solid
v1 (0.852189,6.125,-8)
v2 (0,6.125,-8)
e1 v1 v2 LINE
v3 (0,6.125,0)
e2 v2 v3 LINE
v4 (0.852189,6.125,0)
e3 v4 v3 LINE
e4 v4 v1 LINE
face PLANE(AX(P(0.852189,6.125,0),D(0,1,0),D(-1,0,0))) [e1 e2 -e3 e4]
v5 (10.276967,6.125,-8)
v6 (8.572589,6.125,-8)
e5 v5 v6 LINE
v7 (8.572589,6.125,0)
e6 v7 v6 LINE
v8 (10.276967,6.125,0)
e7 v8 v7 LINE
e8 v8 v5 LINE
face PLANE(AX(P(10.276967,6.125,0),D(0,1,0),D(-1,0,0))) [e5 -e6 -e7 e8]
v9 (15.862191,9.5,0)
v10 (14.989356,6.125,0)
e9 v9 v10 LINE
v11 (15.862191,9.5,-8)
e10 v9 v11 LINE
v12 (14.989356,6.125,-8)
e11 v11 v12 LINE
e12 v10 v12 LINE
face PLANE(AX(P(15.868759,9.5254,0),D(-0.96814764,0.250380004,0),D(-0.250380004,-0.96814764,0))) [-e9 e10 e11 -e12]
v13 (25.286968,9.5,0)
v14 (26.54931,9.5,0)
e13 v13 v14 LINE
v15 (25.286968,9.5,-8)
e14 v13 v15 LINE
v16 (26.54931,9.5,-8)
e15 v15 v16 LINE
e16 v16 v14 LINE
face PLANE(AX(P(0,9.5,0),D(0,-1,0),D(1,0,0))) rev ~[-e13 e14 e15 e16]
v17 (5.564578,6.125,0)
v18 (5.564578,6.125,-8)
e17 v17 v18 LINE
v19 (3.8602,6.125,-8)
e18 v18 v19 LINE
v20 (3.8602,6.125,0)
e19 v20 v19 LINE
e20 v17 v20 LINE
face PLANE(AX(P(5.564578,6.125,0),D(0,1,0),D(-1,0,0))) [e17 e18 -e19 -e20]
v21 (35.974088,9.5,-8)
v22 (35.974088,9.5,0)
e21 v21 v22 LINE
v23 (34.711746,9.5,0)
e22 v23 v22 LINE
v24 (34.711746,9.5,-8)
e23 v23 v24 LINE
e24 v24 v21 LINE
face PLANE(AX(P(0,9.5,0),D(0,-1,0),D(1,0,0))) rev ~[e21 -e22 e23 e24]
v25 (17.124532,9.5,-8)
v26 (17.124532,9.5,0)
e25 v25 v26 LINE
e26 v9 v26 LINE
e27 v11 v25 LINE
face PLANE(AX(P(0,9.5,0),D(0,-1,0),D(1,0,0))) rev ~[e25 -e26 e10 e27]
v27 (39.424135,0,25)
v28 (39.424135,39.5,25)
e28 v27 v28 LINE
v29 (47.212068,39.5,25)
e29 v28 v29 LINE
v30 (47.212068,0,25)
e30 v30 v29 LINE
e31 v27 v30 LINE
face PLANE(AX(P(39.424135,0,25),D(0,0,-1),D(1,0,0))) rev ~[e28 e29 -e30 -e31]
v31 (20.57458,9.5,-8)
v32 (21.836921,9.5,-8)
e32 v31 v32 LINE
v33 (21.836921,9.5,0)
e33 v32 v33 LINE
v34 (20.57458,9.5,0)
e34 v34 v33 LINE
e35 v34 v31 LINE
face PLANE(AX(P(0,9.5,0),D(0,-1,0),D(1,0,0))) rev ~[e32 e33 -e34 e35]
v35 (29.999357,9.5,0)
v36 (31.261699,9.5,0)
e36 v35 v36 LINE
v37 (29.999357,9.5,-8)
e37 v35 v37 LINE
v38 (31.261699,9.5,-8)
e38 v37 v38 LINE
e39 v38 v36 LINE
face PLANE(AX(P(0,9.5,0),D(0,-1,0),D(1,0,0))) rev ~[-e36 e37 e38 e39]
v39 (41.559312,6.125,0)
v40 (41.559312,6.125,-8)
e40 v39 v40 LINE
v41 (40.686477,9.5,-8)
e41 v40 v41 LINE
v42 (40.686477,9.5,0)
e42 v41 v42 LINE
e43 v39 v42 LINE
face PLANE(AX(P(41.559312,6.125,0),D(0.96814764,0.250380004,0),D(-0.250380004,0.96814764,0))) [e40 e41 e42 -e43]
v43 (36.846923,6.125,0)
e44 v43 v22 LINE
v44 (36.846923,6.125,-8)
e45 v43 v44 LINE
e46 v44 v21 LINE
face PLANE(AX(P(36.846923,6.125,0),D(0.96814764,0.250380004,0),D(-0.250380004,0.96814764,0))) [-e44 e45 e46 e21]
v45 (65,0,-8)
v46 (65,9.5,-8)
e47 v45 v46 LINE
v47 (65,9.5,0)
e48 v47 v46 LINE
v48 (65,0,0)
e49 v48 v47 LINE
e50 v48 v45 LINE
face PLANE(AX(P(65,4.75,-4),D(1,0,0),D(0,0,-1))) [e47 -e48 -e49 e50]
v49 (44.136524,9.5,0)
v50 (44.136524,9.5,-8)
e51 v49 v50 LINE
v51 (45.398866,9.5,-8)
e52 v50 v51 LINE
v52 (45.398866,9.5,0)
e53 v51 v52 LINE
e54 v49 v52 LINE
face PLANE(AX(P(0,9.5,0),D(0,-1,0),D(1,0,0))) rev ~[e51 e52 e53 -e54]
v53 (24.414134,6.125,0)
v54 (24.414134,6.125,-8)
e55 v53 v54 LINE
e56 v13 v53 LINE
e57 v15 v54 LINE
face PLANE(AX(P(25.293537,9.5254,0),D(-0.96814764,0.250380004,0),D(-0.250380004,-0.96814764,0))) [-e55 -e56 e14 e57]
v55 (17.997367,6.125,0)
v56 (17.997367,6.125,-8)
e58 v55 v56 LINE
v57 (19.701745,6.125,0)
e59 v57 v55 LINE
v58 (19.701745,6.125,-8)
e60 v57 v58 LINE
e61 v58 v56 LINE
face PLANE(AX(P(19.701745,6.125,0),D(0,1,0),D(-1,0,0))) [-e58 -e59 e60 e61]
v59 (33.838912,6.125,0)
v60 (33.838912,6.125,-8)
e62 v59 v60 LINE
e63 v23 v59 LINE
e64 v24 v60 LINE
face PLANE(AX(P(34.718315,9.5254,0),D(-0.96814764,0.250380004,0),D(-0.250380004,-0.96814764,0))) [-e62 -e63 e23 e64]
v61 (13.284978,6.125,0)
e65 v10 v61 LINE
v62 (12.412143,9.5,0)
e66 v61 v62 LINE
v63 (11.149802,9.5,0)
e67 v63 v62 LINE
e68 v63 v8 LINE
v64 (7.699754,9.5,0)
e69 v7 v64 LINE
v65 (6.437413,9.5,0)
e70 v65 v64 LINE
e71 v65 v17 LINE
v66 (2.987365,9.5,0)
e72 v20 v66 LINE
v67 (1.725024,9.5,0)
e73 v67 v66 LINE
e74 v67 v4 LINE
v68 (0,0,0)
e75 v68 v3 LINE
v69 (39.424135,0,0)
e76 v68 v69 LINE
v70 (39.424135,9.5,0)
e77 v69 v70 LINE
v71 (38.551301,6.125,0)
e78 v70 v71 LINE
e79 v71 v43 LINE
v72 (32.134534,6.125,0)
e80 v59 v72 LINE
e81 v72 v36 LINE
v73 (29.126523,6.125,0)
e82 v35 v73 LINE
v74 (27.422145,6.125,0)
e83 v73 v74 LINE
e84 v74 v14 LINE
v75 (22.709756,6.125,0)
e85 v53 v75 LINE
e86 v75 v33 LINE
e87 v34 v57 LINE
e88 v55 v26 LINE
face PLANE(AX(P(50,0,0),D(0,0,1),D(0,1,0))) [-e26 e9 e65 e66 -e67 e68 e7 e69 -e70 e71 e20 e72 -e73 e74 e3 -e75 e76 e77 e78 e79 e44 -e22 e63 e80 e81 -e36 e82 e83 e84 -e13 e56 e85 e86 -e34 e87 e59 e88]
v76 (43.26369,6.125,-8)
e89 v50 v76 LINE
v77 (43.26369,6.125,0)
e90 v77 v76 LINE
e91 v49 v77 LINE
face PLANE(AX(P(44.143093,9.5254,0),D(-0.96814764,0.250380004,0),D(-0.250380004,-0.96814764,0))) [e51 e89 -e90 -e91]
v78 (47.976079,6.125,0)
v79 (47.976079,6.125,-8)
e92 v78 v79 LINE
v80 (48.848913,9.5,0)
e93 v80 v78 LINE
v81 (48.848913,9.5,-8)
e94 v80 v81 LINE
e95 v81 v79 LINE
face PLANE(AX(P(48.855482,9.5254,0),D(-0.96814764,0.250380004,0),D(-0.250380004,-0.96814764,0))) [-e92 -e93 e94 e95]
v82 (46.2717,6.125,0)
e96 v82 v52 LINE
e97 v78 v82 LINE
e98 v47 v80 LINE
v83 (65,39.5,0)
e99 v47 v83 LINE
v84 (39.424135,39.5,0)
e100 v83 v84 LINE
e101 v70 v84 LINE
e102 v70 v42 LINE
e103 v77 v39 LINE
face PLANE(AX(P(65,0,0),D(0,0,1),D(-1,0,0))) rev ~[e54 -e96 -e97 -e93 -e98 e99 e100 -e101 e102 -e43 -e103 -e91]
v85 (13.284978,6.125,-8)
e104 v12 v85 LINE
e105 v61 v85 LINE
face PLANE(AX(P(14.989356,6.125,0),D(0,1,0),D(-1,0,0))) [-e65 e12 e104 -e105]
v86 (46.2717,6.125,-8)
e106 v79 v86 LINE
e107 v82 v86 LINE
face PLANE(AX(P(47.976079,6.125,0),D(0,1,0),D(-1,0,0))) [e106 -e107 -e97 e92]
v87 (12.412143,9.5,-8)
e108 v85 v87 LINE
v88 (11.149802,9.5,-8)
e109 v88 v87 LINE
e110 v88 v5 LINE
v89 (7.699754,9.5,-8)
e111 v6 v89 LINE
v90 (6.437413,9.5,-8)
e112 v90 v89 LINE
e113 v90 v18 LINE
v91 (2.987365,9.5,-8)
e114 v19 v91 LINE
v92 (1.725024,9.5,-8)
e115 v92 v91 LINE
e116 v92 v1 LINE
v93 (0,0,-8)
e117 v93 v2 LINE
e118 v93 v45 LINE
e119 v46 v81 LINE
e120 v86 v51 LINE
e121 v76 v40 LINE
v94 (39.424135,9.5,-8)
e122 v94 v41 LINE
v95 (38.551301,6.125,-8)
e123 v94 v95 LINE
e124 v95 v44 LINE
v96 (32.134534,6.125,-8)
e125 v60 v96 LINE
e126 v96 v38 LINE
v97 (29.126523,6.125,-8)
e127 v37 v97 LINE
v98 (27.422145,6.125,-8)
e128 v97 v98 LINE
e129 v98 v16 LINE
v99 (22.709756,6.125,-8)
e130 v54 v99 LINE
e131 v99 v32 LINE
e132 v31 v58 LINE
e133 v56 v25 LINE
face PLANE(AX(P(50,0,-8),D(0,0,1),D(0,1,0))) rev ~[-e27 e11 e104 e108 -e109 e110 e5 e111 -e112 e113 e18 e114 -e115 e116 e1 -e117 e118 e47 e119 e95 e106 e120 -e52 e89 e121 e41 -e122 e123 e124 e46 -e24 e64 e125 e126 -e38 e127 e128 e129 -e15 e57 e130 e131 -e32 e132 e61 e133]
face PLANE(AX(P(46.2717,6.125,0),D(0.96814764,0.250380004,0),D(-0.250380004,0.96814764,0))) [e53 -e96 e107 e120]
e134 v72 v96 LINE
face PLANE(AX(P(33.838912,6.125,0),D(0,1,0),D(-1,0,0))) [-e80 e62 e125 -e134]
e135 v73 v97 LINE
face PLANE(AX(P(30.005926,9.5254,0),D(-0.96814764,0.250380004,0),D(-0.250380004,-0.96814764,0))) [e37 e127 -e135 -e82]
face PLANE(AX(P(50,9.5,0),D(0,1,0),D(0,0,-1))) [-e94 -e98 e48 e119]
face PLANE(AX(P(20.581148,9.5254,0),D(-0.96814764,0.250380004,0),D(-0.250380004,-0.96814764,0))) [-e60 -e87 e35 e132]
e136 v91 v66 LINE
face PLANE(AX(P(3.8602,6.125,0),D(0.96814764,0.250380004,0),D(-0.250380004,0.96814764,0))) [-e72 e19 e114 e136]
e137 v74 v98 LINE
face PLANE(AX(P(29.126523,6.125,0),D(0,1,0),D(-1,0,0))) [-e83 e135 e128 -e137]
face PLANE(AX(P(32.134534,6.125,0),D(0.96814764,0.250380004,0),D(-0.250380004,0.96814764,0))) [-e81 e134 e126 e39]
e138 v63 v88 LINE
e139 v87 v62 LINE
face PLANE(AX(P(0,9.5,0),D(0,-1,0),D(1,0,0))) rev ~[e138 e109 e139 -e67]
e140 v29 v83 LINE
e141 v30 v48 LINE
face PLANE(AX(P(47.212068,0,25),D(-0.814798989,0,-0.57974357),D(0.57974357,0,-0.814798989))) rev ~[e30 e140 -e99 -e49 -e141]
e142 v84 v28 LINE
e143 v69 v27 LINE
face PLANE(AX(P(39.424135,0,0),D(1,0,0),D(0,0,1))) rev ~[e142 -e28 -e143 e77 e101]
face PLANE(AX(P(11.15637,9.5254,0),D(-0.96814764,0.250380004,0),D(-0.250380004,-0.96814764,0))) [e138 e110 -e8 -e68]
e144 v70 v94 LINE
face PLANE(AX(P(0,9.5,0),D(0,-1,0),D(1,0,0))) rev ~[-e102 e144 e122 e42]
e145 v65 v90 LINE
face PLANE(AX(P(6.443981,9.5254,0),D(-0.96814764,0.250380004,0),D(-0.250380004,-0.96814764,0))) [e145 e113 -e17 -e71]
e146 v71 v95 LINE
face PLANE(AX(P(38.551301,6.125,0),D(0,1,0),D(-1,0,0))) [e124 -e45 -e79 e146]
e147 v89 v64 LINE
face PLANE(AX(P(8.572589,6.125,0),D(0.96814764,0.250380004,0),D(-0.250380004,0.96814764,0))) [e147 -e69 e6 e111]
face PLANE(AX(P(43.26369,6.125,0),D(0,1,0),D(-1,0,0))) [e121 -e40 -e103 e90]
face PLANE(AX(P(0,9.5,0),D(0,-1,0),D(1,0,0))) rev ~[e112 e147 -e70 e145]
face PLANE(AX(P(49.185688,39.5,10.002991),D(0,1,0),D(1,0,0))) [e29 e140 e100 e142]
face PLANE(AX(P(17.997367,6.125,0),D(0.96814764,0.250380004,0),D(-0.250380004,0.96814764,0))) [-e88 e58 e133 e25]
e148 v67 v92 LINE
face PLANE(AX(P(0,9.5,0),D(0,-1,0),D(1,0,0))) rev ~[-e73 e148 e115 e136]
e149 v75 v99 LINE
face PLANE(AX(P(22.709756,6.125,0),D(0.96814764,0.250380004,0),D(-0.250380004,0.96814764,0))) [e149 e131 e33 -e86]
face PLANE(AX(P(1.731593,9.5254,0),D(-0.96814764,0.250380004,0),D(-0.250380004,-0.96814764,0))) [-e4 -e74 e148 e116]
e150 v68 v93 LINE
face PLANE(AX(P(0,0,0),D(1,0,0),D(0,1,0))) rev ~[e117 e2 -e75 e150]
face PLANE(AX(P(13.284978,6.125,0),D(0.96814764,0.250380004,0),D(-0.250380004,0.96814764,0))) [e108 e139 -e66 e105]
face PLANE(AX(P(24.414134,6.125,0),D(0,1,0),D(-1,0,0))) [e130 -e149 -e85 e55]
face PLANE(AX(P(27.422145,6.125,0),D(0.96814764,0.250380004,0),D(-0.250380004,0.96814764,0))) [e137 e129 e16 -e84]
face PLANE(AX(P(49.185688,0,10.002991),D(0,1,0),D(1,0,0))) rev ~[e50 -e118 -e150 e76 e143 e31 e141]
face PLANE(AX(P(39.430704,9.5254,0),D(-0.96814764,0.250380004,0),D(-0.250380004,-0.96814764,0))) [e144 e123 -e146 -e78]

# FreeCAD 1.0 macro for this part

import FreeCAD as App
import Part
import Sketcher
from FreeCAD import Vector
Q = App.Units.Quantity

doc = App.newDocument("Part")
params = doc.addObject("Spreadsheet::Sheet", "Params")
for row, (alias, value) in enumerate([
    ("sketch1_width", "50 mm"),
    ("sketch1_height", "9.5 mm"),
    ("pad1_length", "8 mm"),
    ("linearpattern_pitch", "4.712389 mm"),
    ("sketch3_height", "8 mm"),
    ("sketch3_width", "9.5 mm"),
    ("pad2_length", "15 mm"),
    ("sketch4_height", "25 mm"),
    ("pad3_length", "39.5 mm"),
], start=1):
    params.set(f"A{row}", alias)
    params.set(f"B{row}", "=" + value)
    params.setAlias(f"B{row}", alias)

body = doc.addObject("PartDesign::Body", "Body")

sketch1 = doc.addObject("Sketcher::SketchObject", "Sketch")
body.addObject(sketch1)
sketch1.AttachmentSupport = (doc.XY_Plane, [""])
sketch1.MapMode = "FlatFace"
sketch1.addGeometry([
    Part.LineSegment(Vector(0, 10, 0), Vector(0, 0, 0)),
    Part.LineSegment(Vector(0, 0, 0), Vector(50, 0, 0)),
    Part.LineSegment(Vector(50, 0, 0), Vector(50, 10, 0)),
    Part.LineSegment(Vector(50, 10, 0), Vector(0, 10, 0)),
], False)
sketch1.addConstraint([
    Sketcher.Constraint("Coincident", 0, 2, 1, 1),
    Sketcher.Constraint("Coincident", 1, 2, 2, 1),
    Sketcher.Constraint("Coincident", 2, 2, 3, 1),
    Sketcher.Constraint("Coincident", 3, 2, 0, 1),
    Sketcher.Constraint("Vertical", 0),
    Sketcher.Constraint("Horizontal", 1),
    Sketcher.Constraint("Vertical", 2),
    Sketcher.Constraint("Horizontal", 3),
    Sketcher.Constraint("Coincident", 0, 2, -1, 1),
    Sketcher.Constraint("DistanceX", 1, 1, 1, 2, Q("50 mm")),
    Sketcher.Constraint("DistanceY", 0, 2, 0, 1, Q("9.5 mm")),
])
sketch1.setExpression("Constraints[9]", "Params.sketch1_width")
sketch1.setExpression("Constraints[10]", "Params.sketch1_height")
pad1 = doc.addObject("PartDesign::Pad", "Pad")
body.addObject(pad1)
pad1.Profile = sketch1
pad1.setExpression("Length", "Params.pad1_length")
pad1.Reversed = True

sketch2 = doc.addObject("Sketcher::SketchObject", "Sketch001")
body.addObject(sketch2)
sketch2.AttachmentSupport = (doc.XY_Plane, [""])
sketch2.MapMode = "FlatFace"
sketch2.addGeometry([
    Part.LineSegment(Vector(-0.9, 6.1, 0), Vector(0.9, 6.1, 0)),
    Part.LineSegment(Vector(0.9, 6.1, 0), Vector(1.7, 9.5, 0)),
    Part.LineSegment(Vector(1.7, 9.5, 0), Vector(-1.7, 9.5, 0)),
    Part.LineSegment(Vector(-1.7, 9.5, 0), Vector(-0.9, 6.1, 0)),
], False)
sketch2.addConstraint([
    Sketcher.Constraint("Coincident", 0, 2, 1, 1),
    Sketcher.Constraint("Coincident", 1, 2, 2, 1),
    Sketcher.Constraint("Coincident", 2, 2, 3, 1),
    Sketcher.Constraint("Coincident", 3, 2, 0, 1),
    Sketcher.Constraint("Horizontal", 0),
    Sketcher.Constraint("Horizontal", 2),
    Sketcher.Constraint("Equal", 1, 3),
    Sketcher.Constraint("Angle", 1, Q("75.5 deg")),
    Sketcher.Constraint("DistanceY", -1, 1, 0, 2, Q("6.125 mm")),
    Sketcher.Constraint("DistanceX", 0, 1, 0, 2, Q("1.704379 mm")),
    Sketcher.Constraint("DistanceY", -1, 1, 1, 2, Q("9.5254 mm")),
    Sketcher.Constraint("DistanceX", -1, 1, 0, 2, Q("0.852189 mm")),
])
pocket1 = doc.addObject("PartDesign::Pocket", "Pocket")
body.addObject(pocket1)
pocket1.Profile = sketch2
pocket1.Type = "ThroughAll"
doc.recompute()

linearpattern = doc.addObject("PartDesign::LinearPattern", "LinearPattern")
body.addObject(linearpattern)
linearpattern.Originals = [pocket1]
linearpattern.Direction = (doc.X_Axis, [""])
linearpattern.Mode = "offset"
linearpattern.setExpression("Offset", "Params.linearpattern_pitch")
linearpattern.Occurrences = 11
body.Tip = linearpattern

sketch3 = doc.addObject("Sketcher::SketchObject", "Sketch002")
body.addObject(sketch3)
sketch3.AttachmentSupport = (doc.YZ_Plane, [""])
sketch3.MapMode = "FlatFace"
sketch3.AttachmentOffset = App.Placement(Vector(0, 0, 50), App.Rotation())
sketch3.addGeometry([
    Part.LineSegment(Vector(10, 0, 0), Vector(0, 0, 0)),
    Part.LineSegment(Vector(0, 0, 0), Vector(0, -8, 0)),
    Part.LineSegment(Vector(0, -8, 0), Vector(10, -8, 0)),
    Part.LineSegment(Vector(10, -8, 0), Vector(10, 0, 0)),
], False)
sketch3.addConstraint([
    Sketcher.Constraint("Coincident", 0, 2, 1, 1),
    Sketcher.Constraint("Coincident", 1, 2, 2, 1),
    Sketcher.Constraint("Coincident", 2, 2, 3, 1),
    Sketcher.Constraint("Coincident", 3, 2, 0, 1),
    Sketcher.Constraint("Horizontal", 0),
    Sketcher.Constraint("Vertical", 1),
    Sketcher.Constraint("Horizontal", 2),
    Sketcher.Constraint("Vertical", 3),
    Sketcher.Constraint("Coincident", 0, 2, -1, 1),
    Sketcher.Constraint("DistanceY", 1, 2, 1, 1, Q("8 mm")),
    Sketcher.Constraint("DistanceX", 0, 2, 0, 1, Q("9.5 mm")),
])
sketch3.setExpression("Constraints[9]", "Params.sketch3_height")
sketch3.setExpression("Constraints[10]", "Params.sketch3_width")
pad2 = doc.addObject("PartDesign::Pad", "Pad001")
body.addObject(pad2)
pad2.Profile = sketch3
pad2.setExpression("Length", "Params.pad2_length")

sketch4 = doc.addObject("Sketcher::SketchObject", "Sketch003")
body.addObject(sketch4)
sketch4.AttachmentSupport = (doc.XZ_Plane, [""])
sketch4.MapMode = "FlatFace"
sketch4.addGeometry([
    Part.LineSegment(Vector(65, 0, 0), Vector(39, 0, 0)),
    Part.LineSegment(Vector(39, 0, 0), Vector(39, 25, 0)),
    Part.LineSegment(Vector(39, 25, 0), Vector(47, 25, 0)),
    Part.LineSegment(Vector(47, 25, 0), Vector(65, 0, 0)),
], False)
sketch4.addConstraint([
    Sketcher.Constraint("Coincident", 0, 2, 1, 1),
    Sketcher.Constraint("Coincident", 1, 2, 2, 1),
    Sketcher.Constraint("Coincident", 2, 2, 3, 1),
    Sketcher.Constraint("Coincident", 3, 2, 0, 1),
    Sketcher.Constraint("Horizontal", 0),
    Sketcher.Constraint("Vertical", 1),
    Sketcher.Constraint("Horizontal", 2),
    Sketcher.Constraint("PointOnObject", 0, 2, -1),
    Sketcher.Constraint("DistanceY", 1, 1, 1, 2, Q("25 mm")),
    Sketcher.Constraint("DistanceX", -1, 1, 3, 2, Q("65 mm")),
    Sketcher.Constraint("DistanceX", 0, 2, 0, 1, Q("25.575865 mm")),
    Sketcher.Constraint("DistanceX", 2, 1, 2, 2, Q("7.787932 mm")),
])
sketch4.setExpression("Constraints[8]", "Params.sketch4_height")
pad3 = doc.addObject("PartDesign::Pad", "Pad002")
body.addObject(pad3)
pad3.Profile = sketch4
pad3.setExpression("Length", "Params.pad3_length")
pad3.Reversed = True

doc.recompute()
